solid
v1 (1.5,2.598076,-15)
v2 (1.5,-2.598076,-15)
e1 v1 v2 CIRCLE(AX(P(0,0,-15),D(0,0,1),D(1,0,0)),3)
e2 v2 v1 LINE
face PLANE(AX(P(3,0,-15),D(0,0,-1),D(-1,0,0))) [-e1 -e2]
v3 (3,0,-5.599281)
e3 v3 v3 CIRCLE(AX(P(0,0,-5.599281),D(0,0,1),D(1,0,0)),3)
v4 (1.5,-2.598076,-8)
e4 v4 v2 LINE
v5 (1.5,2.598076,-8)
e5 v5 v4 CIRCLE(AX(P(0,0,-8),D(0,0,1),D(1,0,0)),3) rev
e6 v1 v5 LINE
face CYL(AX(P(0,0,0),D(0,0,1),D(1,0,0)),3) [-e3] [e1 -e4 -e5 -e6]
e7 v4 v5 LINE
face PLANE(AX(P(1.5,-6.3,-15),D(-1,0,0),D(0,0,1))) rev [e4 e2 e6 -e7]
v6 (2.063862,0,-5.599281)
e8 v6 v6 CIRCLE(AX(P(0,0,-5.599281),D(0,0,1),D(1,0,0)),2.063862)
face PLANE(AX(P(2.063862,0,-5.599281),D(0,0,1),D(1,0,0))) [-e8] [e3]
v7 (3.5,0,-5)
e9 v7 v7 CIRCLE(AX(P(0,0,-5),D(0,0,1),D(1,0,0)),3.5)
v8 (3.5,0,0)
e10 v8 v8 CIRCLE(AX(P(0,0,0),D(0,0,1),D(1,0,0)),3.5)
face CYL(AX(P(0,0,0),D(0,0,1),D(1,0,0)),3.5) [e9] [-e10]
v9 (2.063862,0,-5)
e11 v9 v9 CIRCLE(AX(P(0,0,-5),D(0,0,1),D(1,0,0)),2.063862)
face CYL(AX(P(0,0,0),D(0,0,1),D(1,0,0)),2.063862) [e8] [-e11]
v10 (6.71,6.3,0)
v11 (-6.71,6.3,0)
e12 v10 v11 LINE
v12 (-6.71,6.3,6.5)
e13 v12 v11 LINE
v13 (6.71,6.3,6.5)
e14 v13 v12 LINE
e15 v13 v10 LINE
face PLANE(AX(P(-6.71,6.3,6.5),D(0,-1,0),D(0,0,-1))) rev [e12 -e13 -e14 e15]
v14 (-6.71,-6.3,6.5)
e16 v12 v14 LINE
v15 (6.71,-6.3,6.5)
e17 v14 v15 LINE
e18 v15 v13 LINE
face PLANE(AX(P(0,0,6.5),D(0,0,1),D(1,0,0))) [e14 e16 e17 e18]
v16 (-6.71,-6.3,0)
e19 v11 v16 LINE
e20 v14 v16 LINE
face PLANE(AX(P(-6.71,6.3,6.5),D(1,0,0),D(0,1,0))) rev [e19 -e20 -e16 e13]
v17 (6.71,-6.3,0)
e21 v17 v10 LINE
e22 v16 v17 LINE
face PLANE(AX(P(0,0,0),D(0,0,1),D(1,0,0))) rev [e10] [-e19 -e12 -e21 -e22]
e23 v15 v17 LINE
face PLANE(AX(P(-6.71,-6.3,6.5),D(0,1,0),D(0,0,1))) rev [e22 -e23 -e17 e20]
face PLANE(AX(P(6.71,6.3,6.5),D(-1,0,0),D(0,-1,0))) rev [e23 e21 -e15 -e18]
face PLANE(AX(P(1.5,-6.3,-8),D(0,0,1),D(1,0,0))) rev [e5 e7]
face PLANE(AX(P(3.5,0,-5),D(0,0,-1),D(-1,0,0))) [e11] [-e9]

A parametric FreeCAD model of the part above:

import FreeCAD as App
import Part
import Sketcher
Q = App.Units.Quantity


def add_polygon(sketch, points):
    """Adds a closed chain of lines whose ends are joined by coincident constraints."""
    first, n = sketch.GeometryCount, len(points)
    for a, b in zip(points, points[1:] + points[:1]):
        sketch.addGeometry(Part.LineSegment(App.Vector(*a, 0), App.Vector(*b, 0)), False)
    for i in range(n):
        sketch.addConstraint(Sketcher.Constraint("Coincident", first + i, 2, first + (i + 1) % n, 1))

doc = App.newDocument("Part")
body = doc.addObject("PartDesign::Body", "Body")

# Sketch on XY plane
sketch1 = body.newObject("Sketcher::SketchObject", "Sketch")
sketch1.AttachmentSupport = (doc.getObject("XY_Plane"), [""])
sketch1.MapMode = "FlatFace"
add_polygon(sketch1, [(-7, 6), (-7, -6), (7, -6), (7, 6)])  # lines 0-3
sketch1.addConstraint([
    Sketcher.Constraint("Vertical", 0),
    Sketcher.Constraint("Horizontal", 1),
    Sketcher.Constraint("Vertical", 2),
    Sketcher.Constraint("Horizontal", 3),
    Sketcher.Constraint("Symmetric", 0, 2, 2, 2, -1, 1),
    Sketcher.Constraint("DistanceY", 0, 2, 0, 1, Q("12.6 mm")),
    Sketcher.Constraint("DistanceX", 1, 1, 1, 2, Q("13.42 mm")),
])
pad1 = body.newObject("PartDesign::Pad", "Pad")
pad1.Profile = sketch1
pad1.Length = 6.5

# Sketch on XZ plane
sketch2 = body.newObject("Sketcher::SketchObject", "Sketch001")
sketch2.AttachmentSupport = (doc.getObject("XZ_Plane"), [""])
sketch2.MapMode = "FlatFace"
add_polygon(sketch2, [(0, 0), (3.5, 0), (3.5, -5), (2.1, -5), (2.1, -5.6), (3, -5.6), (3, -15), (0, -15)])  # lines 0-7
sketch2.addConstraint([
    Sketcher.Constraint("Horizontal", 0),
    Sketcher.Constraint("Vertical", 1),
    Sketcher.Constraint("Horizontal", 2),
    Sketcher.Constraint("Vertical", 3),
    Sketcher.Constraint("Horizontal", 4),
    Sketcher.Constraint("Vertical", 5),
    Sketcher.Constraint("Horizontal", 6),
    Sketcher.Constraint("Vertical", 7),
    Sketcher.Constraint("Coincident", 7, 2, -1, 1),
    Sketcher.Constraint("DistanceX", 6, 2, 6, 1, Q("3 mm")),
    Sketcher.Constraint("DistanceY", 1, 2, 1, 1, Q("5 mm")),
    Sketcher.Constraint("DistanceY", 7, 1, 7, 2, Q("15 mm")),
    Sketcher.Constraint("DistanceX", 0, 1, 0, 2, Q("3.5 mm")),
    Sketcher.Constraint("DistanceY", 3, 2, 3, 1, Q("0.599281 mm")),
    Sketcher.Constraint("DistanceX", 2, 2, 2, 1, Q("1.436138 mm")),
])
revolution = body.newObject("PartDesign::Revolution", "Revolution")
revolution.Profile = sketch2
revolution.ReferenceAxis = (sketch2, ["V_Axis"])
revolution.Angle = 360

# Sketch on XZ plane
sketch3 = body.newObject("Sketcher::SketchObject", "Sketch002")
sketch3.AttachmentSupport = (doc.getObject("XZ_Plane"), [""])
sketch3.MapMode = "FlatFace"
add_polygon(sketch3, [(1.5, -15), (1.5, -8), (3, -8), (3, -15)])  # lines 0-3
sketch3.addConstraint([
    Sketcher.Constraint("Vertical", 0),
    Sketcher.Constraint("Horizontal", 1),
    Sketcher.Constraint("Vertical", 2),
    Sketcher.Constraint("Horizontal", 3),
    Sketcher.Constraint("DistanceY", 0, 1, 0, 2, Q("7 mm")),
    Sketcher.Constraint("DistanceX", 1, 1, 1, 2, Q("1.5 mm")),
    Sketcher.Constraint("DistanceY", 0, 2, -1, 1, Q("8 mm")),
    Sketcher.Constraint("DistanceX", -1, 1, 1, 2, Q("3 mm")),
])
pocket1 = body.newObject("PartDesign::Pocket", "Pocket")
pocket1.Profile = sketch3
pocket1.Type = "ThroughAll"
pocket1.Midplane = True

doc.recompute()
